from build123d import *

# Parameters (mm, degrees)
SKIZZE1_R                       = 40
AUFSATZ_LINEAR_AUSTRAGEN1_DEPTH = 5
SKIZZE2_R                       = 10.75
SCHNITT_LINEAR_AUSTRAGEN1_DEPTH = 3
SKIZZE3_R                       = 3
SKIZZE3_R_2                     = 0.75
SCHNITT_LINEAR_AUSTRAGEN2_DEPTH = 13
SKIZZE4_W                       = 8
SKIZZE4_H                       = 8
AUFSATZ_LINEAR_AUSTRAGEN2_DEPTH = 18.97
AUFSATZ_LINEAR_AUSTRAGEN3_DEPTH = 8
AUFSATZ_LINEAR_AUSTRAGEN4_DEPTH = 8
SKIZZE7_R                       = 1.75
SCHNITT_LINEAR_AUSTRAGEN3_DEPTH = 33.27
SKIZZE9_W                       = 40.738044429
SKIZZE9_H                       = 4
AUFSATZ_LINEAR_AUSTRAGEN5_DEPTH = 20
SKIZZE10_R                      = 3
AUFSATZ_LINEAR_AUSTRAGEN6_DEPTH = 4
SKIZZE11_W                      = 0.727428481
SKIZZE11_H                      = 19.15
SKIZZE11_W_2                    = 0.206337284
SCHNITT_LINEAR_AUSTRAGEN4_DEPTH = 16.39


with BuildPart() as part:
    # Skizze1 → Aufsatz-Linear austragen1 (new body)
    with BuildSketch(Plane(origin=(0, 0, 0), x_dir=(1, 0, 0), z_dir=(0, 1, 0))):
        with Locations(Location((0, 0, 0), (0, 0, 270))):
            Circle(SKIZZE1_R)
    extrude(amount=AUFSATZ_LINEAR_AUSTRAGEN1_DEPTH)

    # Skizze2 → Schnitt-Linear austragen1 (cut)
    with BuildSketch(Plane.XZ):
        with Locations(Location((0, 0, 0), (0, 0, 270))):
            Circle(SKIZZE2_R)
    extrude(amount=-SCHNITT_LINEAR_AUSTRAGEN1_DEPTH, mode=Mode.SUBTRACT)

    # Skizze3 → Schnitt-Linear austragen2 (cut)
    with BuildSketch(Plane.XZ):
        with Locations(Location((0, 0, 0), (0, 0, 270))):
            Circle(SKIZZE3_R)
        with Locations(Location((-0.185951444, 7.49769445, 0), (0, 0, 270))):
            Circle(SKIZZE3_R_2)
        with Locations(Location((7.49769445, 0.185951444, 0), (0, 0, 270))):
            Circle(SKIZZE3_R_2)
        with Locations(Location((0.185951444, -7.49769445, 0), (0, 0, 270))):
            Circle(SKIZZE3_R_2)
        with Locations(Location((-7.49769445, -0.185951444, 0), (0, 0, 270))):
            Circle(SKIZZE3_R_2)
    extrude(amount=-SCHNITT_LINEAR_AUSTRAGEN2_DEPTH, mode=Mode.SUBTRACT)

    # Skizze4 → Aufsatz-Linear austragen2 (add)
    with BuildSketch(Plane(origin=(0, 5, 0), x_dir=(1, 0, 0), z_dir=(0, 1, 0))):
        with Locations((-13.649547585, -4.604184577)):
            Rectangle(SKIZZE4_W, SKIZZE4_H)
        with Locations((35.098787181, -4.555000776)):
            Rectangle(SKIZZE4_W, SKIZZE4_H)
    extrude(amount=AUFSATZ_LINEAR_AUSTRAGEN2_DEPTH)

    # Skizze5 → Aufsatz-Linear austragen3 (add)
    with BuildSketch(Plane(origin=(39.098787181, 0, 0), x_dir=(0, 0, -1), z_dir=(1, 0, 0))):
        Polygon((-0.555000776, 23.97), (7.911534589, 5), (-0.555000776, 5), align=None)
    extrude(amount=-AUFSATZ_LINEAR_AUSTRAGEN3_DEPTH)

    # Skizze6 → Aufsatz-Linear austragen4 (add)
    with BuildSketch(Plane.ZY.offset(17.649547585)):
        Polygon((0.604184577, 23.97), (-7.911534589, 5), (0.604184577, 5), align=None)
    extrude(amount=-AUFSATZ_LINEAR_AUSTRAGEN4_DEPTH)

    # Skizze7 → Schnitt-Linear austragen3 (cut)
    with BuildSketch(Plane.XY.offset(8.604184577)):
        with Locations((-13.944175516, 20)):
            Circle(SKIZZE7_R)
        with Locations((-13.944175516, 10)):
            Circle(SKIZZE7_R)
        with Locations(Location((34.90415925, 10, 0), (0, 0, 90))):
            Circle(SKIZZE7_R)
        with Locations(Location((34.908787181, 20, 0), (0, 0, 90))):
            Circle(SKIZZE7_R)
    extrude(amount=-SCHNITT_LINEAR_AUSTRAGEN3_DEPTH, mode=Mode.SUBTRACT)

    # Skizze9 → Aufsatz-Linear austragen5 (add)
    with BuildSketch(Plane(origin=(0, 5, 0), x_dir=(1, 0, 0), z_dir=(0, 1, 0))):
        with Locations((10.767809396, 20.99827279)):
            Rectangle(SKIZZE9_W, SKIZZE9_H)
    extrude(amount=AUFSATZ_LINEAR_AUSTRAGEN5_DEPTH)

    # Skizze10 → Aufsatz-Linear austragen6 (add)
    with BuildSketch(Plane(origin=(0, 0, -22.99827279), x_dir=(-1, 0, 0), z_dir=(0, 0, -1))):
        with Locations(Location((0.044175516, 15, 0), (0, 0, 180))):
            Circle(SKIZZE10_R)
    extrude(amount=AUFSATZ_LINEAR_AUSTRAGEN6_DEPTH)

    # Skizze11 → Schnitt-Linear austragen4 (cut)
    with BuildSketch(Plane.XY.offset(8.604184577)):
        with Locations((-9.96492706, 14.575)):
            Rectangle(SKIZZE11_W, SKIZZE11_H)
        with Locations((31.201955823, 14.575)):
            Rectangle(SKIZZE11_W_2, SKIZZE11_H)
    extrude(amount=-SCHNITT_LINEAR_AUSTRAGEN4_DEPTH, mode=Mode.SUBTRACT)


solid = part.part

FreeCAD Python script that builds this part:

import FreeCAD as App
import Part
import Sketcher

V = App.Vector
Q = App.Units.Quantity

doc = App.newDocument("Part")
params = doc.addObject("Spreadsheet::Sheet", "Params")
for row, (alias, value) in enumerate([
    ("sketch1_diameter", "80 mm"),
    ("pad1_length", "5 mm"),
    ("sketch2_diameter", "21.5 mm"),
    ("pocket1_length", "3 mm"),
    ("sketch3_diameter", "6 mm"),
    ("sketch3_diameter2", "1.5 mm"),
    ("pocket2_length", "13 mm"),
    ("sketch4_width", "8 mm"),
    ("pad2_length", "18.97 mm"),
    ("sketch5_width", "18.97 mm"),
    ("pad3_length", "8 mm"),
    ("sketch6_width", "18.97 mm"),
    ("pad4_length", "8 mm"),
    ("sketch7_diameter", "3.5 mm"),
    ("pocket3_length", "33.27 mm"),
    ("sketch8_height", "4 mm"),
    ("pad5_length", "20 mm"),
    ("sketch9_diameter", "6 mm"),
    ("pad6_length", "4 mm"),
    ("sketch10_height", "19.15 mm"),
    ("pocket4_length", "16.39 mm"),
], start=1):
    params.set(f"A{row}", alias)
    params.set(f"B{row}", "=" + value)
    params.setAlias(f"B{row}", alias)

body = doc.addObject("PartDesign::Body", "Body")

# Sketch on XZ plane
sketch1 = body.newObject("Sketcher::SketchObject", "Sketch")
sketch1.AttachmentSupport = (doc.getObject("XZ_Plane"), [""])
sketch1.MapMode = "FlatFace"
sketch1.addGeometry(Part.Circle(V(0, 0, 0), V(0, 0, 1), 40), False)
sketch1.addConstraint(Sketcher.Constraint("Coincident", 0, 3, -1, 1))
sketch1.addConstraint(Sketcher.Constraint("Diameter", 0, Q("80 mm")))
sketch1.setExpression("Constraints[1]", "Params.sketch1_diameter")
pad1 = body.newObject("PartDesign::Pad", "Pad")
pad1.Profile = sketch1
pad1.setExpression("Length", "Params.pad1_length")
pad1.Reversed = True

# Sketch on XZ plane
sketch2 = body.newObject("Sketcher::SketchObject", "Sketch001")
sketch2.AttachmentSupport = (doc.getObject("XZ_Plane"), [""])
sketch2.MapMode = "FlatFace"
sketch2.addGeometry(Part.Circle(V(0, 0, 0), V(0, 0, 1), 11), False)
sketch2.addConstraint(Sketcher.Constraint("Coincident", 0, 3, -1, 1))
sketch2.addConstraint(Sketcher.Constraint("Diameter", 0, Q("21.5 mm")))
sketch2.setExpression("Constraints[1]", "Params.sketch2_diameter")
pocket1 = body.newObject("PartDesign::Pocket", "Pocket")
pocket1.Profile = sketch2
pocket1.setExpression("Length", "Params.pocket1_length")

# Sketch on XZ plane
sketch3 = body.newObject("Sketcher::SketchObject", "Sketch002")
sketch3.AttachmentSupport = (doc.getObject("XZ_Plane"), [""])
sketch3.MapMode = "FlatFace"
sketch3.addGeometry(Part.Circle(V(0, 0, 0), V(0, 0, 1), 3), False)
sketch3.addGeometry(Part.Circle(V(-0.2, 7.5, 0), V(0, 0, 1), 0.8), False)
sketch3.addGeometry(Part.Circle(V(7.5, 0.2, 0), V(0, 0, 1), 0.8), False)
sketch3.addGeometry(Part.Circle(V(0.2, -7.5, 0), V(0, 0, 1), 0.8), False)
sketch3.addGeometry(Part.Circle(V(-7.5, -0.2, 0), V(0, 0, 1), 0.8), False)
sketch3.addConstraint(Sketcher.Constraint("Coincident", 0, 3, -1, 1))
sketch3.addConstraint(Sketcher.Constraint("Equal", 1, 2))
sketch3.addConstraint(Sketcher.Constraint("Equal", 2, 3))
sketch3.addConstraint(Sketcher.Constraint("Equal", 3, 4))
sketch3.addConstraint(Sketcher.Constraint("Symmetric", 1, 3, 3, 3, -1, 1))
sketch3.addConstraint(Sketcher.Constraint("Symmetric", 2, 3, 4, 3, -1, 1))
sketch3.addConstraint(Sketcher.Constraint("Diameter", 0, Q("6 mm")))
sketch3.addConstraint(Sketcher.Constraint("Diameter", 1, Q("1.5 mm")))
sketch3.addConstraint(Sketcher.Constraint("DistanceX", 1, 3, -1, 1, Q("0.185951 mm")))
sketch3.addConstraint(Sketcher.Constraint("DistanceY", -1, 1, 2, 3, Q("0.185951 mm")))
sketch3.addConstraint(Sketcher.Constraint("DistanceY", 3, 3, 1, 3, Q("14.995389 mm")))
sketch3.addConstraint(Sketcher.Constraint("DistanceX", 4, 3, 2, 3, Q("14.995389 mm")))
sketch3.setExpression("Constraints[6]", "Params.sketch3_diameter")
sketch3.setExpression("Constraints[7]", "Params.sketch3_diameter2")
pocket2 = body.newObject("PartDesign::Pocket", "Pocket001")
pocket2.Profile = sketch3
pocket2.setExpression("Length", "Params.pocket2_length")

# Sketch on XZ plane
sketch4 = body.newObject("Sketcher::SketchObject", "Sketch003")
sketch4.AttachmentSupport = (doc.getObject("XZ_Plane"), [""])
sketch4.MapMode = "FlatFace"
sketch4.AttachmentOffset = App.Placement(V(0, 0, -5), App.Rotation())
sketch4.addGeometry(Part.LineSegment(V(-18, 1, 0), V(-18, 9, 0)), False)
sketch4.addGeometry(Part.LineSegment(V(-18, 9, 0), V(-10, 9, 0)), False)
sketch4.addGeometry(Part.LineSegment(V(-10, 9, 0), V(-10, 1, 0)), False)
sketch4.addGeometry(Part.LineSegment(V(-10, 1, 0), V(-18, 1, 0)), False)
sketch4.addGeometry(Part.LineSegment(V(31, 1, 0), V(31, 9, 0)), False)
sketch4.addGeometry(Part.LineSegment(V(31, 9, 0), V(39, 9, 0)), False)
sketch4.addGeometry(Part.LineSegment(V(39, 9, 0), V(39, 1, 0)), False)
sketch4.addGeometry(Part.LineSegment(V(39, 1, 0), V(31, 1, 0)), False)
sketch4.addConstraint(Sketcher.Constraint("Coincident", 0, 2, 1, 1))
sketch4.addConstraint(Sketcher.Constraint("Coincident", 1, 2, 2, 1))
sketch4.addConstraint(Sketcher.Constraint("Coincident", 2, 2, 3, 1))
sketch4.addConstraint(Sketcher.Constraint("Coincident", 3, 2, 0, 1))
sketch4.addConstraint(Sketcher.Constraint("Coincident", 4, 2, 5, 1))
sketch4.addConstraint(Sketcher.Constraint("Coincident", 5, 2, 6, 1))
sketch4.addConstraint(Sketcher.Constraint("Coincident", 6, 2, 7, 1))
sketch4.addConstraint(Sketcher.Constraint("Coincident", 7, 2, 4, 1))
sketch4.addConstraint(Sketcher.Constraint("Vertical", 0))
sketch4.addConstraint(Sketcher.Constraint("Horizontal", 1))
sketch4.addConstraint(Sketcher.Constraint("Vertical", 2))
sketch4.addConstraint(Sketcher.Constraint("Horizontal", 3))
sketch4.addConstraint(Sketcher.Constraint("Vertical", 4))
sketch4.addConstraint(Sketcher.Constraint("Horizontal", 5))
sketch4.addConstraint(Sketcher.Constraint("Vertical", 6))
sketch4.addConstraint(Sketcher.Constraint("Horizontal", 7))
sketch4.addConstraint(Sketcher.Constraint("Equal", 3, 5))
sketch4.addConstraint(Sketcher.Constraint("Equal", 7, 0))
sketch4.addConstraint(Sketcher.Constraint("Equal", 2, 4))
sketch4.addConstraint(Sketcher.Constraint("DistanceX", 1, 1, 1, 2, Q("8 mm")))
sketch4.addConstraint(Sketcher.Constraint("DistanceY", -1, 1, 4, 2, Q("8.555001 mm")))
sketch4.addConstraint(Sketcher.Constraint("DistanceX", 0, 2, -1, 1, Q("17.649548 mm")))
sketch4.addConstraint(Sketcher.Constraint("DistanceY", -1, 1, 0, 2, Q("8.604185 mm")))
sketch4.addConstraint(Sketcher.Constraint("DistanceX", -1, 1, 4, 2, Q("31.098787 mm")))
sketch4.setExpression("Constraints[19]", "Params.sketch4_width")
pad2 = body.newObject("PartDesign::Pad", "Pad001")
pad2.Profile = sketch4
pad2.setExpression("Length", "Params.pad2_length")
pad2.Reversed = True

# Sketch on YZ plane
sketch5 = body.newObject("Sketcher::SketchObject", "Sketch004")
sketch5.AttachmentSupport = (doc.getObject("YZ_Plane"), [""])
sketch5.MapMode = "FlatFace"
sketch5.AttachmentOffset = App.Placement(V(0, 0, 39.098787), App.Rotation())
sketch5.addGeometry(Part.LineSegment(V(5, -8, 0), V(24, 1, 0)), False)
sketch5.addGeometry(Part.LineSegment(V(24, 1, 0), V(5, 1, 0)), False)
sketch5.addGeometry(Part.LineSegment(V(5, 1, 0), V(5, -8, 0)), False)
sketch5.addConstraint(Sketcher.Constraint("Coincident", 0, 2, 1, 1))
sketch5.addConstraint(Sketcher.Constraint("Coincident", 1, 2, 2, 1))
sketch5.addConstraint(Sketcher.Constraint("Coincident", 2, 2, 0, 1))
sketch5.addConstraint(Sketcher.Constraint("Horizontal", 1))
sketch5.addConstraint(Sketcher.Constraint("Vertical", 2))
sketch5.addConstraint(Sketcher.Constraint("DistanceX", -1, 1, 1, 2, Q("5 mm")))
sketch5.addConstraint(Sketcher.Constraint("DistanceX", 1, 2, 1, 1, Q("18.97 mm")))
sketch5.addConstraint(Sketcher.Constraint("DistanceY", -1, 1, 0, 2, Q("0.555001 mm")))
sketch5.addConstraint(Sketcher.Constraint("DistanceY", 2, 2, 2, 1, Q("8.466535 mm")))
sketch5.setExpression("Constraints[6]", "Params.sketch5_width")
pad3 = body.newObject("PartDesign::Pad", "Pad002")
pad3.Profile = sketch5
pad3.setExpression("Length", "Params.pad3_length")
pad3.Reversed = True

# Sketch on YZ plane
sketch6 = body.newObject("Sketcher::SketchObject", "Sketch005")
sketch6.AttachmentSupport = (doc.getObject("YZ_Plane"), [""])
sketch6.MapMode = "FlatFace"
sketch6.AttachmentOffset = App.Placement(V(0, 0, -17.649548), App.Rotation())
sketch6.addGeometry(Part.LineSegment(V(24, 1, 0), V(5, -8, 0)), False)
sketch6.addGeometry(Part.LineSegment(V(5, -8, 0), V(5, 1, 0)), False)
sketch6.addGeometry(Part.LineSegment(V(5, 1, 0), V(24, 1, 0)), False)
sketch6.addConstraint(Sketcher.Constraint("Coincident", 0, 2, 1, 1))
sketch6.addConstraint(Sketcher.Constraint("Coincident", 1, 2, 2, 1))
sketch6.addConstraint(Sketcher.Constraint("Coincident", 2, 2, 0, 1))
sketch6.addConstraint(Sketcher.Constraint("Vertical", 1))
sketch6.addConstraint(Sketcher.Constraint("Horizontal", 2))
sketch6.addConstraint(Sketcher.Constraint("DistanceX", -1, 1, 0, 2, Q("5 mm")))
sketch6.addConstraint(Sketcher.Constraint("DistanceX", 2, 1, 2, 2, Q("18.97 mm")))
sketch6.addConstraint(Sketcher.Constraint("DistanceY", 1, 1, 1, 2, Q("8.515719 mm")))
sketch6.addConstraint(Sketcher.Constraint("DistanceY", 0, 2, -1, 1, Q("7.911535 mm")))
sketch6.setExpression("Constraints[6]", "Params.sketch6_width")
pad4 = body.newObject("PartDesign::Pad", "Pad003")
pad4.Profile = sketch6
pad4.setExpression("Length", "Params.pad4_length")

# Sketch on XY plane
sketch7 = body.newObject("Sketcher::SketchObject", "Sketch006")
sketch7.AttachmentSupport = (doc.getObject("XY_Plane"), [""])
sketch7.MapMode = "FlatFace"
sketch7.AttachmentOffset = App.Placement(V(0, 0, 8.604185), App.Rotation())
sketch7.addGeometry(Part.Circle(V(-13.9, 20, 0), V(0, 0, 1), 1.8), False)
sketch7.addGeometry(Part.Circle(V(-13.9, 10, 0), V(0, 0, 1), 1.8), False)
sketch7.addGeometry(Part.Circle(V(34.9, 10, 0), V(0, 0, 1), 1.8), False)
sketch7.addGeometry(Part.Circle(V(34.9, 20, 0), V(0, 0, 1), 1.8), False)
sketch7.addConstraint(Sketcher.Constraint("Equal", 0, 1))
sketch7.addConstraint(Sketcher.Constraint("Equal", 1, 2))
sketch7.addConstraint(Sketcher.Constraint("Equal", 2, 3))
sketch7.addConstraint(Sketcher.Constraint("Horizontal", 1, 3, 2, 3))
sketch7.addConstraint(Sketcher.Constraint("Horizontal", 0, 3, 3, 3))
sketch7.addConstraint(Sketcher.Constraint("Vertical", 0, 3, 1, 3))
sketch7.addConstraint(Sketcher.Constraint("Diameter", 0, Q("3.5 mm")))
sketch7.addConstraint(Sketcher.Constraint("DistanceY", -1, 1, 0, 3, Q("20 mm")))
sketch7.addConstraint(Sketcher.Constraint("DistanceY", -1, 1, 1, 3, Q("10 mm")))
sketch7.addConstraint(Sketcher.Constraint("DistanceX", -1, 1, 2, 3, Q("34.904159 mm")))
sketch7.addConstraint(Sketcher.Constraint("DistanceX", 0, 3, -1, 1, Q("13.944176 mm")))
sketch7.addConstraint(Sketcher.Constraint("DistanceX", -1, 1, 3, 3, Q("34.908787 mm")))
sketch7.setExpression("Constraints[6]", "Params.sketch7_diameter")
pocket3 = body.newObject("PartDesign::Pocket", "Pocket002")
pocket3.Profile = sketch7
pocket3.setExpression("Length", "Params.pocket3_length")

# Sketch on XZ plane
sketch8 = body.newObject("Sketcher::SketchObject", "Sketch007")
sketch8.AttachmentSupport = (doc.getObject("XZ_Plane"), [""])
sketch8.MapMode = "FlatFace"
sketch8.AttachmentOffset = App.Placement(V(0, 0, -5), App.Rotation())
sketch8.addGeometry(Part.LineSegment(V(-9.6, -23, 0), V(-9.6, -19, 0)), False)
sketch8.addGeometry(Part.LineSegment(V(-9.6, -19, 0), V(31.1, -19, 0)), False)
sketch8.addGeometry(Part.LineSegment(V(31.1, -19, 0), V(31.1, -23, 0)), False)
sketch8.addGeometry(Part.LineSegment(V(31.1, -23, 0), V(-9.6, -23, 0)), False)
sketch8.addConstraint(Sketcher.Constraint("Coincident", 0, 2, 1, 1))
sketch8.addConstraint(Sketcher.Constraint("Coincident", 1, 2, 2, 1))
sketch8.addConstraint(Sketcher.Constraint("Coincident", 2, 2, 3, 1))
sketch8.addConstraint(Sketcher.Constraint("Coincident", 3, 2, 0, 1))
sketch8.addConstraint(Sketcher.Constraint("Vertical", 0))
sketch8.addConstraint(Sketcher.Constraint("Horizontal", 1))
sketch8.addConstraint(Sketcher.Constraint("Vertical", 2))
sketch8.addConstraint(Sketcher.Constraint("Horizontal", 3))
sketch8.addConstraint(Sketcher.Constraint("DistanceY", 0, 1, 0, 2, Q("4 mm")))
sketch8.addConstraint(Sketcher.Constraint("DistanceX", 1, 1, 1, 2, Q("40.738044 mm")))
sketch8.addConstraint(Sketcher.Constraint("DistanceX", -1, 1, 1, 2, Q("31.136832 mm")))
sketch8.addConstraint(Sketcher.Constraint("DistanceY", 0, 2, -1, 1, Q("18.998273 mm")))
sketch8.setExpression("Constraints[8]", "Params.sketch8_height")
pad5 = body.newObject("PartDesign::Pad", "Pad004")
pad5.Profile = sketch8
pad5.setExpression("Length", "Params.pad5_length")
pad5.Reversed = True

# Sketch on XY plane
sketch9 = body.newObject("Sketcher::SketchObject", "Sketch008")
sketch9.AttachmentSupport = (doc.getObject("XY_Plane"), [""])
sketch9.MapMode = "FlatFace"
sketch9.AttachmentOffset = App.Placement(V(0, 0, -22.998273), App.Rotation())
sketch9.addGeometry(Part.Circle(V(0, 15, 0), V(0, 0, 1), 3), False)
sketch9.addConstraint(Sketcher.Constraint("Diameter", 0, Q("6 mm")))
sketch9.addConstraint(Sketcher.Constraint("DistanceY", -1, 1, 0, 3, Q("15 mm")))
sketch9.addConstraint(Sketcher.Constraint("DistanceX", 0, 3, -1, 1, Q("0.044176 mm")))
sketch9.setExpression("Constraints[0]", "Params.sketch9_diameter")
pad6 = body.newObject("PartDesign::Pad", "Pad005")
pad6.Profile = sketch9
pad6.setExpression("Length", "Params.pad6_length")
pad6.Reversed = True

# Sketch on XY plane
sketch10 = body.newObject("Sketcher::SketchObject", "Sketch009")
sketch10.AttachmentSupport = (doc.getObject("XY_Plane"), [""])
sketch10.MapMode = "FlatFace"
sketch10.AttachmentOffset = App.Placement(V(0, 0, 8.604185), App.Rotation())
sketch10.addGeometry(Part.LineSegment(V(-10.33, 24.15, 0), V(-10.33, 5, 0)), False)
sketch10.addGeometry(Part.LineSegment(V(-10.33, 5, 0), V(-9.6, 5, 0)), False)
sketch10.addGeometry(Part.LineSegment(V(-9.6, 5, 0), V(-9.6, 24.15, 0)), False)
sketch10.addGeometry(Part.LineSegment(V(-9.6, 24.15, 0), V(-10.33, 24.15, 0)), False)
sketch10.addGeometry(Part.LineSegment(V(31.1, 24.15, 0), V(31.1, 5, 0)), False)
sketch10.addGeometry(Part.LineSegment(V(31.1, 5, 0), V(31.31, 5, 0)), False)
sketch10.addGeometry(Part.LineSegment(V(31.31, 5, 0), V(31.31, 24.15, 0)), False)
sketch10.addGeometry(Part.LineSegment(V(31.31, 24.15, 0), V(31.1, 24.15, 0)), False)
sketch10.addConstraint(Sketcher.Constraint("Coincident", 0, 2, 1, 1))
sketch10.addConstraint(Sketcher.Constraint("Coincident", 1, 2, 2, 1))
sketch10.addConstraint(Sketcher.Constraint("Coincident", 2, 2, 3, 1))
sketch10.addConstraint(Sketcher.Constraint("Coincident", 3, 2, 0, 1))
sketch10.addConstraint(Sketcher.Constraint("Coincident", 4, 2, 5, 1))
sketch10.addConstraint(Sketcher.Constraint("Coincident", 5, 2, 6, 1))
sketch10.addConstraint(Sketcher.Constraint("Coincident", 6, 2, 7, 1))
sketch10.addConstraint(Sketcher.Constraint("Coincident", 7, 2, 4, 1))
sketch10.addConstraint(Sketcher.Constraint("Vertical", 0))
sketch10.addConstraint(Sketcher.Constraint("Horizontal", 1))
sketch10.addConstraint(Sketcher.Constraint("Vertical", 2))
sketch10.addConstraint(Sketcher.Constraint("Horizontal", 3))
sketch10.addConstraint(Sketcher.Constraint("Vertical", 4))
sketch10.addConstraint(Sketcher.Constraint("Horizontal", 5))
sketch10.addConstraint(Sketcher.Constraint("Vertical", 6))
sketch10.addConstraint(Sketcher.Constraint("Horizontal", 7))
sketch10.addConstraint(Sketcher.Constraint("Horizontal", 1, 2, 4, 2))
sketch10.addConstraint(Sketcher.Constraint("Horizontal", 3, 2, 6, 2))
sketch10.addConstraint(Sketcher.Constraint("DistanceY", -1, 1, 0, 2, Q("5 mm")))
sketch10.addConstraint(Sketcher.Constraint("DistanceY", 0, 2, 0, 1, Q("19.15 mm")))
sketch10.addConstraint(Sketcher.Constraint("DistanceX", 1, 2, 4, 2, Q("40.7 mm")))
sketch10.addConstraint(Sketcher.Constraint("DistanceX", 1, 1, 1, 2, Q("0.727428 mm")))
sketch10.addConstraint(Sketcher.Constraint("DistanceX", 5, 1, 5, 2, Q("0.206337 mm")))
sketch10.addConstraint(Sketcher.Constraint("DistanceX", 0, 2, -1, 1, Q("10.328641 mm")))
sketch10.setExpression("Constraints[19]", "Params.sketch10_height")
pocket4 = body.newObject("PartDesign::Pocket", "Pocket003")
pocket4.Profile = sketch10
pocket4.setExpression("Length", "Params.pocket4_length")

doc.recompute()
